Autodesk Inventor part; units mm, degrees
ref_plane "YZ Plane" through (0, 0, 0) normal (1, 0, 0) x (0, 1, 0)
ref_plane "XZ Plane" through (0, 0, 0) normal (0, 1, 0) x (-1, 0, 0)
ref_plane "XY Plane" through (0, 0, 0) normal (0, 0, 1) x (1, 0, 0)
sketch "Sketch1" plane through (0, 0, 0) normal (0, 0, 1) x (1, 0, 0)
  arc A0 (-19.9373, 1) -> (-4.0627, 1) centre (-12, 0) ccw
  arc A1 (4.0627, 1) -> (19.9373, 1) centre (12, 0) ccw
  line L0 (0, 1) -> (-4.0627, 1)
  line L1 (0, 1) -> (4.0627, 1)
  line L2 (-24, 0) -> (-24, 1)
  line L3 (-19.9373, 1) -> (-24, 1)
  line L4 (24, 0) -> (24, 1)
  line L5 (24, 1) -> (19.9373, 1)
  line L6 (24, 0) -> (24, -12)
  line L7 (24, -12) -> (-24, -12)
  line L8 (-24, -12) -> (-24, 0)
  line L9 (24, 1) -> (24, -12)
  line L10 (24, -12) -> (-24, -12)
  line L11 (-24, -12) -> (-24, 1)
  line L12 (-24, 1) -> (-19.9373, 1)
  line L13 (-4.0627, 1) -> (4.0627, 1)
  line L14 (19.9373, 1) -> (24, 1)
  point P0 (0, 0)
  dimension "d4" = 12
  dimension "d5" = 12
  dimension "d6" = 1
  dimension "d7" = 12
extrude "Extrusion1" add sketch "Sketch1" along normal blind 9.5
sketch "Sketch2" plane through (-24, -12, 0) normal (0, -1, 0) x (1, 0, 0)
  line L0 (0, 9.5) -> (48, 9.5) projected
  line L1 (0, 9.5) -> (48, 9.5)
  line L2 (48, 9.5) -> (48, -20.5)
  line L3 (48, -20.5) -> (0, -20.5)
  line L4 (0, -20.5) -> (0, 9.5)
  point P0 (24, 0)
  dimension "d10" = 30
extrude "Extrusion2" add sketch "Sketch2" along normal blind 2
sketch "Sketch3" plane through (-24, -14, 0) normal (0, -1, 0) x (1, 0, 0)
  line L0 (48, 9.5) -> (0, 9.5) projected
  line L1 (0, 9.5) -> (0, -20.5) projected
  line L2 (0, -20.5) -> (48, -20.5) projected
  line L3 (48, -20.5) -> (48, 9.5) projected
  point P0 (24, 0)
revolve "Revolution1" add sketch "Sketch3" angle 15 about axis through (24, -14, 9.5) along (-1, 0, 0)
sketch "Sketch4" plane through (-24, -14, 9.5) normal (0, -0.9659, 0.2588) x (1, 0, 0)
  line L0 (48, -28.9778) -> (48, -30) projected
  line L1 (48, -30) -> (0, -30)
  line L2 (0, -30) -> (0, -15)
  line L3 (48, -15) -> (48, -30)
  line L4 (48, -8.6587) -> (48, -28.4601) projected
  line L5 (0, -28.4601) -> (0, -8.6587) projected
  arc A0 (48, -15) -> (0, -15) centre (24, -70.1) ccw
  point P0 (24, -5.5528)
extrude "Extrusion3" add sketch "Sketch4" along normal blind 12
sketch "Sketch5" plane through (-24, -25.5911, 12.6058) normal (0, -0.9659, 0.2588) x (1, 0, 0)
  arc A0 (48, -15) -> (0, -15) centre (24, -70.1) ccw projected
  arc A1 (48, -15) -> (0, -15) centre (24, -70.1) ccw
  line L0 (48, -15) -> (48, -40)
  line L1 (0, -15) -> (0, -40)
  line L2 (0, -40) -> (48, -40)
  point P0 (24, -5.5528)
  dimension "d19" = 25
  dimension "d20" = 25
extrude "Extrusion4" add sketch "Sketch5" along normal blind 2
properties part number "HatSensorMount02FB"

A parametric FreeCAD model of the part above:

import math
import FreeCAD as App
import Part
import Sketcher

V = App.Vector
Q = App.Units.Quantity

doc = App.newDocument("Part")
body = doc.addObject("PartDesign::Body", "Body")

sketch1 = body.newObject("Sketcher::SketchObject", "Sketch")
sketch1.AttachmentSupport = (doc.getObject("XY_Plane"), [""])
sketch1.MapMode = "FlatFace"
sketch1.addGeometry(Part.ArcOfCircle(Part.Circle(V(-12, 0, 0), V(0, 0, 1), 8), math.radians(173), math.radians(367)), False)
sketch1.addGeometry(Part.LineSegment(V(-19.9, 1, 0), V(-24, 1, 0)), False)
sketch1.addGeometry(Part.LineSegment(V(-24, 1, 0), V(-24, -12, 0)), False)
sketch1.addGeometry(Part.LineSegment(V(-24, -12, 0), V(24, -12, 0)), False)
sketch1.addGeometry(Part.LineSegment(V(24, -12, 0), V(24, 1, 0)), False)
sketch1.addGeometry(Part.LineSegment(V(24, 1, 0), V(19.9, 1, 0)), False)
sketch1.addGeometry(Part.ArcOfCircle(Part.Circle(V(12, 0, 0), V(0, 0, 1), 8), math.radians(173), math.radians(367)), False)
sketch1.addGeometry(Part.LineSegment(V(4.1, 1, 0), V(-4.1, 1, 0)), False)
sketch1.addConstraint(Sketcher.Constraint("Coincident", 0, 1, 1, 1))
sketch1.addConstraint(Sketcher.Constraint("Coincident", 1, 2, 2, 1))
sketch1.addConstraint(Sketcher.Constraint("Coincident", 2, 2, 3, 1))
sketch1.addConstraint(Sketcher.Constraint("Coincident", 3, 2, 4, 1))
sketch1.addConstraint(Sketcher.Constraint("Coincident", 4, 2, 5, 1))
sketch1.addConstraint(Sketcher.Constraint("Coincident", 5, 2, 6, 2))
sketch1.addConstraint(Sketcher.Constraint("Coincident", 6, 1, 7, 1))
sketch1.addConstraint(Sketcher.Constraint("Coincident", 7, 2, 0, 2))
sketch1.addConstraint(Sketcher.Constraint("Horizontal", 1))
sketch1.addConstraint(Sketcher.Constraint("Vertical", 2))
sketch1.addConstraint(Sketcher.Constraint("Horizontal", 3))
sketch1.addConstraint(Sketcher.Constraint("Vertical", 4))
sketch1.addConstraint(Sketcher.Constraint("Horizontal", 5))
sketch1.addConstraint(Sketcher.Constraint("Horizontal", 7))
sketch1.addConstraint(Sketcher.Constraint("Equal", 0, 6))
sketch1.addConstraint(Sketcher.Constraint("Symmetric", 0, 3, 6, 3, -1, 1))
sketch1.addConstraint(Sketcher.Constraint("Symmetric", 1, 2, 4, 2, -2))
sketch1.addConstraint(Sketcher.Constraint("PointOnObject", 0, 3, -1))
sketch1.addConstraint(Sketcher.Constraint("Horizontal", 5, 2, 6, 1))
sketch1.addConstraint(Sketcher.Constraint("DistanceX", 0, 3, -1, 1, Q("12 mm")))
sketch1.addConstraint(Sketcher.Constraint("DistanceY", -1, 1, 0, 1, Q("1 mm")))
sketch1.addConstraint(Sketcher.Constraint("DistanceY", 2, 2, -1, 1, Q("12 mm")))
sketch1.addConstraint(Sketcher.Constraint("Radius", 0, Q("8 mm")))
sketch1.addConstraint(Sketcher.Constraint("DistanceX", 1, 2, 0, 3, Q("12 mm")))
pad1 = body.newObject("PartDesign::Pad", "Pad")
pad1.Profile = sketch1
pad1.Length = 9.5

sketch2 = body.newObject("Sketcher::SketchObject", "Sketch001")
sketch2.AttachmentSupport = (doc.getObject("XZ_Plane"), [""])
sketch2.MapMode = "FlatFace"
sketch2.AttachmentOffset = App.Placement(V(0, 0, 12), App.Rotation())
sketch2.addGeometry(Part.LineSegment(V(24, 10, 0), V(-24, 10, 0)), False)
sketch2.addGeometry(Part.LineSegment(V(-24, 10, 0), V(-24, -20, 0)), False)
sketch2.addGeometry(Part.LineSegment(V(-24, -20, 0), V(24, -20, 0)), False)
sketch2.addGeometry(Part.LineSegment(V(24, -20, 0), V(24, 10, 0)), False)
sketch2.addConstraint(Sketcher.Constraint("Coincident", 0, 2, 1, 1))
sketch2.addConstraint(Sketcher.Constraint("Coincident", 1, 2, 2, 1))
sketch2.addConstraint(Sketcher.Constraint("Coincident", 2, 2, 3, 1))
sketch2.addConstraint(Sketcher.Constraint("Coincident", 3, 2, 0, 1))
sketch2.addConstraint(Sketcher.Constraint("Horizontal", 0))
sketch2.addConstraint(Sketcher.Constraint("Vertical", 1))
sketch2.addConstraint(Sketcher.Constraint("Horizontal", 2))
sketch2.addConstraint(Sketcher.Constraint("Vertical", 3))
sketch2.addConstraint(Sketcher.Constraint("DistanceY", 1, 2, 1, 1, Q("30 mm")))
sketch2.addConstraint(Sketcher.Constraint("DistanceX", 0, 2, 0, 1, Q("48 mm")))
sketch2.addConstraint(Sketcher.Constraint("DistanceX", 0, 2, -1, 1, Q("24 mm")))
sketch2.addConstraint(Sketcher.Constraint("DistanceY", -1, 1, 0, 2, Q("9.5 mm")))
pad2 = body.newObject("PartDesign::Pad", "Pad001")
pad2.Profile = sketch2
pad2.Length = 2

sketch3 = body.newObject("Sketcher::SketchObject", "Sketch002")
sketch3.AttachmentSupport = (doc.getObject("XZ_Plane"), [""])
sketch3.MapMode = "FlatFace"
sketch3.AttachmentOffset = App.Placement(V(0, 0, 14), App.Rotation())
sketch3.addGeometry(Part.LineSegment(V(24, -20, 0), V(24, 10, 0)), False)
sketch3.addGeometry(Part.LineSegment(V(24, 10, 0), V(-24, 10, 0)), False)
sketch3.addGeometry(Part.LineSegment(V(-24, 10, 0), V(-24, -20, 0)), False)
sketch3.addGeometry(Part.LineSegment(V(-24, -20, 0), V(24, -20, 0)), False)
sketch3.addGeometry(Part.LineSegment(V(24, 10, 0), V(-24, 10, 0)), True)
sketch3.addConstraint(Sketcher.Constraint("Coincident", 0, 2, 1, 1))
sketch3.addConstraint(Sketcher.Constraint("Coincident", 1, 2, 2, 1))
sketch3.addConstraint(Sketcher.Constraint("Coincident", 2, 2, 3, 1))
sketch3.addConstraint(Sketcher.Constraint("Coincident", 3, 2, 0, 1))
sketch3.addConstraint(Sketcher.Constraint("Vertical", 0))
sketch3.addConstraint(Sketcher.Constraint("Horizontal", 1))
sketch3.addConstraint(Sketcher.Constraint("Vertical", 2))
sketch3.addConstraint(Sketcher.Constraint("Horizontal", 3))
sketch3.addConstraint(Sketcher.Constraint("Horizontal", 4))
sketch3.addConstraint(Sketcher.Constraint("Coincident", 4, 1, 0, 2))
sketch3.addConstraint(Sketcher.Constraint("Vertical", 2, 2, 4, 2))
sketch3.addConstraint(Sketcher.Constraint("DistanceX", 1, 2, 1, 1, Q("48 mm")))
sketch3.addConstraint(Sketcher.Constraint("DistanceY", 0, 1, 0, 2, Q("30 mm")))
sketch3.addConstraint(Sketcher.Constraint("DistanceX", -1, 1, 0, 2, Q("24 mm")))
sketch3.addConstraint(Sketcher.Constraint("DistanceY", -1, 1, 0, 2, Q("9.5 mm")))
revolution = body.newObject("PartDesign::Revolution", "Revolution")
revolution.Profile = sketch3
revolution.ReferenceAxis = (sketch3, ["Axis0"])
revolution.Angle = 15

sketch4 = body.newObject("Sketcher::SketchObject", "Sketch003")
sketch4.Placement = App.Placement(V(-24, -14, 9.5), App.Rotation(V(1, 0, 0), V(0, 0.258819045, 0.965925826), V(0, -0.965925826, 0.258819045), "ZXY"))
sketch4.addGeometry(Part.LineSegment(V(48, -30, 0), V(48, -15, 0)), False)
sketch4.addGeometry(Part.ArcOfCircle(Part.Circle(V(24, -70, 0), V(0, 0, 1), 60), math.radians(66), math.radians(114)), False)
sketch4.addGeometry(Part.LineSegment(V(0, -15, 0), V(0, -30, 0)), False)
sketch4.addGeometry(Part.LineSegment(V(0, -30, 0), V(48, -30, 0)), False)
sketch4.addConstraint(Sketcher.Constraint("Coincident", 0, 2, 1, 1))
sketch4.addConstraint(Sketcher.Constraint("Coincident", 1, 2, 2, 1))
sketch4.addConstraint(Sketcher.Constraint("Coincident", 2, 2, 3, 1))
sketch4.addConstraint(Sketcher.Constraint("Coincident", 3, 2, 0, 1))
sketch4.addConstraint(Sketcher.Constraint("Vertical", 0))
sketch4.addConstraint(Sketcher.Constraint("Vertical", 2))
sketch4.addConstraint(Sketcher.Constraint("Horizontal", 3))
sketch4.addConstraint(Sketcher.Constraint("PointOnObject", 1, 2, -2))
sketch4.addConstraint(Sketcher.Constraint("Horizontal", 0, 2, 1, 2))
sketch4.addConstraint(Sketcher.Constraint("Radius", 1, Q("60.1 mm")))
sketch4.addConstraint(Sketcher.Constraint("DistanceX", 3, 1, 3, 2, Q("48 mm")))
sketch4.addConstraint(Sketcher.Constraint("DistanceY", 0, 1, 0, 2, Q("15 mm")))
sketch4.addConstraint(Sketcher.Constraint("DistanceY", 0, 2, -1, 1, Q("15 mm")))
pad3 = body.newObject("PartDesign::Pad", "Pad002")
pad3.Profile = sketch4
pad3.Length = 12

sketch5 = body.newObject("Sketcher::SketchObject", "Sketch004")
sketch5.Placement = App.Placement(V(-24, -25.5911, 12.6058), App.Rotation(V(1, 0, 0), V(0, 0.258819045, 0.965925826), V(0, -0.965925826, 0.258819045), "ZXY"))
sketch5.addGeometry(Part.LineSegment(V(48, -40, 0), V(48, -15, 0)), False)
sketch5.addGeometry(Part.ArcOfCircle(Part.Circle(V(24, -70, 0), V(0, 0, 1), 60), math.radians(66), math.radians(114)), False)
sketch5.addGeometry(Part.LineSegment(V(0, -15, 0), V(0, -40, 0)), False)
sketch5.addGeometry(Part.LineSegment(V(0, -40, 0), V(48, -40, 0)), False)
sketch5.addConstraint(Sketcher.Constraint("Coincident", 0, 2, 1, 1))
sketch5.addConstraint(Sketcher.Constraint("Coincident", 1, 2, 2, 1))
sketch5.addConstraint(Sketcher.Constraint("Coincident", 2, 2, 3, 1))
sketch5.addConstraint(Sketcher.Constraint("Coincident", 3, 2, 0, 1))
sketch5.addConstraint(Sketcher.Constraint("Vertical", 0))
sketch5.addConstraint(Sketcher.Constraint("Vertical", 2))
sketch5.addConstraint(Sketcher.Constraint("Horizontal", 3))
sketch5.addConstraint(Sketcher.Constraint("PointOnObject", 1, 2, -2))
sketch5.addConstraint(Sketcher.Constraint("Horizontal", 0, 2, 1, 2))
sketch5.addConstraint(Sketcher.Constraint("DistanceY", 0, 1, 0, 2, Q("25 mm")))
sketch5.addConstraint(Sketcher.Constraint("Radius", 1, Q("60.1 mm")))
sketch5.addConstraint(Sketcher.Constraint("DistanceX", 3, 1, 3, 2, Q("48 mm")))
sketch5.addConstraint(Sketcher.Constraint("DistanceY", 0, 2, -1, 1, Q("15 mm")))
pad4 = body.newObject("PartDesign::Pad", "Pad003")
pad4.Profile = sketch5
pad4.Length = 2

doc.recompute()
